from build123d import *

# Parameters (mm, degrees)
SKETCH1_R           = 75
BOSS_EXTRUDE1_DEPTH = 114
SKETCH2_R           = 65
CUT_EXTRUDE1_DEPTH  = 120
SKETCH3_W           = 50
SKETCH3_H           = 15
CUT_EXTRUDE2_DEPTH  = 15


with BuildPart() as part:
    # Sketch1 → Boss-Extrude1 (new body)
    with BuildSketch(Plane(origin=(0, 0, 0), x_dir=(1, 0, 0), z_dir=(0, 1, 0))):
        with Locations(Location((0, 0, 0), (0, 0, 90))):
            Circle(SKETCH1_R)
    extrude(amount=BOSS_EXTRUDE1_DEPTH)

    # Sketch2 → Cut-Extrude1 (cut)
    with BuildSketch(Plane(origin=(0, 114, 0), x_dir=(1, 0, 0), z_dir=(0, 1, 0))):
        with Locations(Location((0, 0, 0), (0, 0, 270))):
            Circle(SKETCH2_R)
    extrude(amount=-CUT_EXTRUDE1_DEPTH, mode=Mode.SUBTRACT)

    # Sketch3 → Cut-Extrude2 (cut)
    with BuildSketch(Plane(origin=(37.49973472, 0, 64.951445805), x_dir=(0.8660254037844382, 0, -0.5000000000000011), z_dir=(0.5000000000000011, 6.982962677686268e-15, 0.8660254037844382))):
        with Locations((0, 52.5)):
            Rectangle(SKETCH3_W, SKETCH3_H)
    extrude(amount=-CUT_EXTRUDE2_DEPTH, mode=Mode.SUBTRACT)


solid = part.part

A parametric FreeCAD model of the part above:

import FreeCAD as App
import Part
import Sketcher

V = App.Vector

doc = App.newDocument("Part")
body = doc.addObject("PartDesign::Body", "Body")

sketch1 = body.newObject("Sketcher::SketchObject", "Sketch")
sketch1.AttachmentSupport = (doc.getObject("XZ_Plane"), [""])
sketch1.MapMode = "FlatFace"
sketch1.addGeometry(Part.Circle(V(0, 0, 0), V(0, 0, 1), 75), False)
sketch1.addConstraint([
    Sketcher.Constraint("Coincident", 0, 3, -1, 1),
    Sketcher.Constraint("Diameter", 0, 150.0),
])
pad1 = body.newObject("PartDesign::Pad", "Pad")
pad1.Profile = sketch1
pad1.Length = 114
pad1.Reversed = True

sketch2 = body.newObject("Sketcher::SketchObject", "Sketch001")
sketch2.AttachmentSupport = (doc.getObject("XZ_Plane"), [""])
sketch2.MapMode = "FlatFace"
sketch2.AttachmentOffset = App.Placement(V(0, 0, -114), App.Rotation())
sketch2.addGeometry(Part.Circle(V(0, 0, 0), V(0, 0, 1), 65), False)
sketch2.addConstraint([
    Sketcher.Constraint("Coincident", 0, 3, -1, 1),
    Sketcher.Constraint("Diameter", 0, 130.0),
])
pocket1 = body.newObject("PartDesign::Pocket", "Pocket")
pocket1.Profile = sketch2
pocket1.Length = 120
pocket1.Reversed = True

sketch3 = body.newObject("Sketcher::SketchObject", "Sketch002")
sketch3.Placement = App.Placement(V(37.499735, 0, 64.951446), App.Rotation(V(0.866025404, 0, -0.5), V(0, 1, 0), V(0.5, 0, 0.866025404), "ZXY"))
sketch3.addGeometry([
    Part.LineSegment(V(-25, 60, 0), V(-25, 45, 0)),
    Part.LineSegment(V(-25, 45, 0), V(25, 45, 0)),
    Part.LineSegment(V(25, 45, 0), V(25, 60, 0)),
    Part.LineSegment(V(25, 60, 0), V(-25, 60, 0)),
], False)
sketch3.addConstraint([
    Sketcher.Constraint("Coincident", 0, 2, 1, 1),
    Sketcher.Constraint("Coincident", 1, 2, 2, 1),
    Sketcher.Constraint("Coincident", 2, 2, 3, 1),
    Sketcher.Constraint("Coincident", 3, 2, 0, 1),
    Sketcher.Constraint("Vertical", 0),
    Sketcher.Constraint("Horizontal", 1),
    Sketcher.Constraint("Vertical", 2),
    Sketcher.Constraint("Horizontal", 3),
    Sketcher.Constraint("DistanceX", 1, 1, 1, 2, 50.0),
    Sketcher.Constraint("DistanceY", 0, 2, 0, 1, 15.0),
    Sketcher.Constraint("DistanceX", 0, 2, -1, 1, 25.0),
    Sketcher.Constraint("DistanceY", -1, 1, 0, 2, 45.0),
])
pocket2 = body.newObject("PartDesign::Pocket", "Pocket001")
pocket2.Profile = sketch3
pocket2.Length = 15

doc.recompute()
